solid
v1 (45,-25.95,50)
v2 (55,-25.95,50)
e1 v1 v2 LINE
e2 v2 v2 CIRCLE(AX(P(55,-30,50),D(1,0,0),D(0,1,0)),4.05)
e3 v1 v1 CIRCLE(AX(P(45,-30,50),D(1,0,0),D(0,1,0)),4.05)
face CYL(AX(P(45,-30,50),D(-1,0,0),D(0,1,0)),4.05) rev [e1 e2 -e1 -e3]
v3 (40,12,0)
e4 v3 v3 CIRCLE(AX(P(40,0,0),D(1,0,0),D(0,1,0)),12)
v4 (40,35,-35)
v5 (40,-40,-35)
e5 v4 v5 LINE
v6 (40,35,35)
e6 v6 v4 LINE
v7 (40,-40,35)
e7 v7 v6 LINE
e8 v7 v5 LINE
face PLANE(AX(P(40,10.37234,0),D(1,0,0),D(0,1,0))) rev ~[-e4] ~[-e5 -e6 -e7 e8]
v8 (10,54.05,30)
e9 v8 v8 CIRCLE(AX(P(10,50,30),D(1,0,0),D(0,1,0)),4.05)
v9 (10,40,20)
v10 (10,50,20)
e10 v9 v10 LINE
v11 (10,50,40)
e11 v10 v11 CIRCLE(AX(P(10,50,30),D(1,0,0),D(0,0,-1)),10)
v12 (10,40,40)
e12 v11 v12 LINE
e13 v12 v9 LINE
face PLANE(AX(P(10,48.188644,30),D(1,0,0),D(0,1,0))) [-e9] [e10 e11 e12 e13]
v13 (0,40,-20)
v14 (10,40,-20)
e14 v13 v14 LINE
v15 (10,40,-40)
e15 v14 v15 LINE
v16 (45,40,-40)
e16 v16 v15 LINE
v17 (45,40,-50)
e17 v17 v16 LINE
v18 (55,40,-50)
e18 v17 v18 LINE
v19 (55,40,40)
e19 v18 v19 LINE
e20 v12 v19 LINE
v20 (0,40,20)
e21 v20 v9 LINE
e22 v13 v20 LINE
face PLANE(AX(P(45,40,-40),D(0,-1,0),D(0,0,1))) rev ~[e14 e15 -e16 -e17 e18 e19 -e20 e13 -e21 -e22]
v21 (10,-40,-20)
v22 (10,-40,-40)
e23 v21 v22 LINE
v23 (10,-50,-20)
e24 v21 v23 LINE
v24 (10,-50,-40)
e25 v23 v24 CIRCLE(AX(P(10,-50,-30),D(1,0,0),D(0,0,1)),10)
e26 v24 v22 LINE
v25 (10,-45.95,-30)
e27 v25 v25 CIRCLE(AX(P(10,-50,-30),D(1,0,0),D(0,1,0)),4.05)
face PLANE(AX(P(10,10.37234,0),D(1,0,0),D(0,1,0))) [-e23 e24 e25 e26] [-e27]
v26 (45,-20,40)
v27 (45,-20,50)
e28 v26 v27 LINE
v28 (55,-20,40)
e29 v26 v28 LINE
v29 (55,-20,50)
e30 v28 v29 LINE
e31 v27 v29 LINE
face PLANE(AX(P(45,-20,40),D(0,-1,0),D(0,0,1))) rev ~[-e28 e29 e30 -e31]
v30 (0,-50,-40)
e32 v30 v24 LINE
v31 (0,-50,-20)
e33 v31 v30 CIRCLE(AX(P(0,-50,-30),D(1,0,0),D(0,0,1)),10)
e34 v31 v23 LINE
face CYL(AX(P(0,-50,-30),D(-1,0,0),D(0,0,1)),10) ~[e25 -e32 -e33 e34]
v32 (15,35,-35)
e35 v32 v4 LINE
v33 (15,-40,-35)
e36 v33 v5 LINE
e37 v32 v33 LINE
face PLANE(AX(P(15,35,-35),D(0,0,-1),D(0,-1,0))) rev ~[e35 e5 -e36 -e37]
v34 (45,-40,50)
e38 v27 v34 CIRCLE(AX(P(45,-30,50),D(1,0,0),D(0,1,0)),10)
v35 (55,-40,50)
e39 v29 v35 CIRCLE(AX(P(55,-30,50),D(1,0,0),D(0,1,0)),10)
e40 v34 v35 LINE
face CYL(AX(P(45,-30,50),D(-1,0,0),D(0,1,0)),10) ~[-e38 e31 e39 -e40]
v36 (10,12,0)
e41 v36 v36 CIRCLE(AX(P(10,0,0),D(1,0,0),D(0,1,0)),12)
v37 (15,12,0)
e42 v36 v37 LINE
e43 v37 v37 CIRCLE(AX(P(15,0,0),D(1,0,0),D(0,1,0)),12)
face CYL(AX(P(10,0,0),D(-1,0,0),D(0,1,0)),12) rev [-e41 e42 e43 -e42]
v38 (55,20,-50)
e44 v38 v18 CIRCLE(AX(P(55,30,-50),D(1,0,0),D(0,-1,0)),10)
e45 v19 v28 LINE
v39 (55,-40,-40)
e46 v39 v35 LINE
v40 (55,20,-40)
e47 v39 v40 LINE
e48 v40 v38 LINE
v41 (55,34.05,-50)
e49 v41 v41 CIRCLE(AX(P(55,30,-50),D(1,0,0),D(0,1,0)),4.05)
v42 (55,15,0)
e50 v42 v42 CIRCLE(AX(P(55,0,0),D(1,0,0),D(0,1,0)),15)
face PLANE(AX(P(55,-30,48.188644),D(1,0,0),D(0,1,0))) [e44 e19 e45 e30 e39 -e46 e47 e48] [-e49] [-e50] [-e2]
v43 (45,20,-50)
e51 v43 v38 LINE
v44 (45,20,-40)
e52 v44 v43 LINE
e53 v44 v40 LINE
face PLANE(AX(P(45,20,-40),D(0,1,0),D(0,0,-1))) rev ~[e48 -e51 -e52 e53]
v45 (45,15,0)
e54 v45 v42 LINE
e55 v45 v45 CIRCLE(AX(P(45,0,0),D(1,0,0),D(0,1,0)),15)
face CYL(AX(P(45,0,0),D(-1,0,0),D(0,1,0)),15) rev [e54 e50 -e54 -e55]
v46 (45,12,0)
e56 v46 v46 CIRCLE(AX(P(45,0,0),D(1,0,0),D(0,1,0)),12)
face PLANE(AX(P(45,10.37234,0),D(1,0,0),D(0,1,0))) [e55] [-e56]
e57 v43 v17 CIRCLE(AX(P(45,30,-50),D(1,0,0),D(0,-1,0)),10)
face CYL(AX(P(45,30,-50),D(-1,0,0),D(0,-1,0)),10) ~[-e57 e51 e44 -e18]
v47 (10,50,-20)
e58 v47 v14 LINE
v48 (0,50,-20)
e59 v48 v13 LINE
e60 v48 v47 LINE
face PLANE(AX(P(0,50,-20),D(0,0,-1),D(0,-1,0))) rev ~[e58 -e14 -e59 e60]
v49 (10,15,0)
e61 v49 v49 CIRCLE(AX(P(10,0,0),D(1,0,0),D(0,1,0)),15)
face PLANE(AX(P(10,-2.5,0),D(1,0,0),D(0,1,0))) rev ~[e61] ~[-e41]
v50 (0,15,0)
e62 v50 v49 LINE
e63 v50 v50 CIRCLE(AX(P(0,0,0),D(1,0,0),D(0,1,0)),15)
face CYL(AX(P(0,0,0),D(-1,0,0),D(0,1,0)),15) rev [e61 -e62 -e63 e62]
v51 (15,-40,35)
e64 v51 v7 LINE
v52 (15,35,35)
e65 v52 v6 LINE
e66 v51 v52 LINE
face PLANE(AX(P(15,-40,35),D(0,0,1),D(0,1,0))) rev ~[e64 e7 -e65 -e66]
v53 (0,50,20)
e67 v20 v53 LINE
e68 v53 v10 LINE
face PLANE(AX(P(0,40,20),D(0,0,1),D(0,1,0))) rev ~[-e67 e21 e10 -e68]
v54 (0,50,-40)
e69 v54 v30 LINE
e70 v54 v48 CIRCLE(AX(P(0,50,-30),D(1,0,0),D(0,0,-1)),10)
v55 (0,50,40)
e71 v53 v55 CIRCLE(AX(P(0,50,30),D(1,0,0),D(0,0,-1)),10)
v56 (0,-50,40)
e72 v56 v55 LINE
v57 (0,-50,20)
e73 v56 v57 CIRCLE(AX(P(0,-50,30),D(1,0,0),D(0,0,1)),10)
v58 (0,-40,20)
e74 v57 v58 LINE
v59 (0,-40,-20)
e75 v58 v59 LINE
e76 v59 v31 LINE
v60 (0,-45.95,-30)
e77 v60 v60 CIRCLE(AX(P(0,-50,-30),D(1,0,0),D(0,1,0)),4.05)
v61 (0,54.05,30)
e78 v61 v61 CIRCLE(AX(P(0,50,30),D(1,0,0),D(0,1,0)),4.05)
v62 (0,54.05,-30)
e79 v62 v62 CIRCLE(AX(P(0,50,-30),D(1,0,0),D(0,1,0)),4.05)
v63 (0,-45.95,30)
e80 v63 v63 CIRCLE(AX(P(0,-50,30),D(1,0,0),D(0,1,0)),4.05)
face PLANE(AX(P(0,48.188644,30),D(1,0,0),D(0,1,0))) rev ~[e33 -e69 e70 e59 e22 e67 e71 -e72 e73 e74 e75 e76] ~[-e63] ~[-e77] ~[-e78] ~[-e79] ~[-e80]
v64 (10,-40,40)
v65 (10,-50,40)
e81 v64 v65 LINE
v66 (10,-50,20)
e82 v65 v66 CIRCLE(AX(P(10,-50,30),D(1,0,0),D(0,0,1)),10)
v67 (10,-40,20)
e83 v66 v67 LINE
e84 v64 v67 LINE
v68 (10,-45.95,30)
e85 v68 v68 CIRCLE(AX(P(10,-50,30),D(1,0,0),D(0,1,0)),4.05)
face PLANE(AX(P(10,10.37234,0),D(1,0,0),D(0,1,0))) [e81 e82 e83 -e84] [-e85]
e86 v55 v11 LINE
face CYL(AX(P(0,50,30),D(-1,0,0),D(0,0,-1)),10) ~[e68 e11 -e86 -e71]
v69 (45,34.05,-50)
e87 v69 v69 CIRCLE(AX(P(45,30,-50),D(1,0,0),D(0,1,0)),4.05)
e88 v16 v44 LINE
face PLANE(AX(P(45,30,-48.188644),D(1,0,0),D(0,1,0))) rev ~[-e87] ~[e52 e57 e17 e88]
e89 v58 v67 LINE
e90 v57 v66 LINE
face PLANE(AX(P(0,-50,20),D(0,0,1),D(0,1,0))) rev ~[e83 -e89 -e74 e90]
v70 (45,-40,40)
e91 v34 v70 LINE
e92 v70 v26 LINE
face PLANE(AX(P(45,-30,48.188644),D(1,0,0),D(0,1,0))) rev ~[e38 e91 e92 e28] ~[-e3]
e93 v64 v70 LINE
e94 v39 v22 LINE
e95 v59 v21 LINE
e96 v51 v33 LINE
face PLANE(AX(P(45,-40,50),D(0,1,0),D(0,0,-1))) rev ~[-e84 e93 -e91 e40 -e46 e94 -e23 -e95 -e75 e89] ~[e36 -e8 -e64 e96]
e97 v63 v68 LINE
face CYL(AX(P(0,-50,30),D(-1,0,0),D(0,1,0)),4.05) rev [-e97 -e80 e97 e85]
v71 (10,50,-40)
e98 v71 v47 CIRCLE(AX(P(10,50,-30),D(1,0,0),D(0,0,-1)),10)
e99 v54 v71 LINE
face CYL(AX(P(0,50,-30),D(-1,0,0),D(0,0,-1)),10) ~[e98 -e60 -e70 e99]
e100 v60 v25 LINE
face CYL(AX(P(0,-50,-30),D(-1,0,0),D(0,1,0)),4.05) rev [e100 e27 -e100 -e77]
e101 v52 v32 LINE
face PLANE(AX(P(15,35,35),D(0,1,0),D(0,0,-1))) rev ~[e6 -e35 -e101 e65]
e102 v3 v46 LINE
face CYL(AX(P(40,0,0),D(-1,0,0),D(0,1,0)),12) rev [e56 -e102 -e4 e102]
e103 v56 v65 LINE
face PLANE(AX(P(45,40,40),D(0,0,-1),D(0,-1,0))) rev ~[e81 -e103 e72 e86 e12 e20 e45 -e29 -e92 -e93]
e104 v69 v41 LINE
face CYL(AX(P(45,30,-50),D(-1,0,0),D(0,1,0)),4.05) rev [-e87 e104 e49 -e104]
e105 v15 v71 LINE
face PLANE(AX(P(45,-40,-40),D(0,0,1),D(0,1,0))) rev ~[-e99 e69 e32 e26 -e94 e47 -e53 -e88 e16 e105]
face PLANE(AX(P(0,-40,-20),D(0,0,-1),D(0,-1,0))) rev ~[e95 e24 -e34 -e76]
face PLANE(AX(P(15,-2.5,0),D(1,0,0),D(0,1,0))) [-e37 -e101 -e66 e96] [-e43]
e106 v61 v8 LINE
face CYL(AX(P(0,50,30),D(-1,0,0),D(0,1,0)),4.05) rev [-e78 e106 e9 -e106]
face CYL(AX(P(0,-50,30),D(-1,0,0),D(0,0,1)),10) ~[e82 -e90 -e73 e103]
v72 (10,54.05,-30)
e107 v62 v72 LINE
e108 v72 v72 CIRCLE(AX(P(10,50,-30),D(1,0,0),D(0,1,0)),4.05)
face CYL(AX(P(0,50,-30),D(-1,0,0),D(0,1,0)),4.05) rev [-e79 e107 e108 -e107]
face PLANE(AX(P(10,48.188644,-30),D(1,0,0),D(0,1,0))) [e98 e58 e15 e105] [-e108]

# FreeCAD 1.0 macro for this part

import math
import FreeCAD as App
import Part
import Sketcher
Q = App.Units.Quantity


def add_polygon(sketch, points):
    """Adds a closed chain of lines whose ends are joined by coincident constraints."""
    first, n = sketch.GeometryCount, len(points)
    for a, b in zip(points, points[1:] + points[:1]):
        sketch.addGeometry(Part.LineSegment(App.Vector(*a, 0), App.Vector(*b, 0)), False)
    for i in range(n):
        sketch.addConstraint(Sketcher.Constraint("Coincident", first + i, 2, first + (i + 1) % n, 1))

doc = App.newDocument("Part")
params = doc.addObject("Spreadsheet::Sheet", "Params")
for row, (alias, value) in enumerate([
    ("sketch1_diameter", "30 mm"),
    ("sketch1_radius", "10 mm"),
    ("sketch1_diameter2", "8.1 mm"),
    ("sketch1_width", "90 mm"),
    ("sketch1_width2", "10 mm"),
    ("pad1_length", "10 mm"),
    ("sketch2_diameter", "24 mm"),
    ("sketch2_width", "80 mm"),
    ("pad2_length", "5 mm"),
    ("sketch3_width", "80 mm"),
    ("sketch3_width2", "75 mm"),
    ("sketch3_height", "5 mm"),
    ("pad3_length", "25 mm"),
    ("sketch4_diameter", "24 mm"),
    ("sketch4_width", "80 mm"),
    ("pad4_length", "5 mm"),
    ("sketch5_diameter", "30 mm"),
    ("sketch5_width", "80 mm"),
    ("pad5_length", "10 mm"),
    ("sketch6_radius", "10 mm"),
    ("sketch6_diameter", "8.1 mm"),
    ("sketch6_height", "10 mm"),
    ("pad6_length", "10 mm"),
    ("sketch7_radius", "10 mm"),
    ("sketch7_diameter", "8.1 mm"),
    ("sketch7_width", "10 mm"),
    ("pad7_length", "10 mm"),
], start=1):
    params.set(f"A{row}", alias)
    params.set(f"B{row}", "=" + value)
    params.setAlias(f"B{row}", alias)

body = doc.addObject("PartDesign::Body", "Body")

# Sketch on YZ plane
sketch1 = body.newObject("Sketcher::SketchObject", "Sketch")
sketch1.AttachmentSupport = (doc.getObject("YZ_Plane"), [""])
sketch1.MapMode = "FlatFace"
sketch1.addGeometry([
    Part.LineSegment(App.Vector(40, -40, 0), App.Vector(40, 40, 0)),  # 0
    Part.LineSegment(App.Vector(40, 40, 0), App.Vector(-50, 40, 0)),  # 1
    Part.ArcOfCircle(Part.Circle(App.Vector(-50, 30, 0), App.Vector(0, 0, 1), 10), math.radians(90), math.radians(270)),  # 2
    Part.LineSegment(App.Vector(-50, 20, 0), App.Vector(-40, 20, 0)),  # 3
    Part.LineSegment(App.Vector(-40, 20, 0), App.Vector(-40, -20, 0)),  # 4
    Part.LineSegment(App.Vector(-40, -20, 0), App.Vector(-50, -20, 0)),  # 5
    Part.ArcOfCircle(Part.Circle(App.Vector(-50, -30, 0), App.Vector(0, 0, 1), 10), math.radians(90), math.radians(270)),  # 6
    Part.LineSegment(App.Vector(-50, -40, 0), App.Vector(40, -40, 0)),  # 7
    Part.Circle(App.Vector(-50, -30, 0), App.Vector(0, 0, 1), 4),  # 8
    Part.Circle(App.Vector(-50, 30, 0), App.Vector(0, 0, 1), 4),  # 9
    Part.Circle(App.Vector(0, 0, 0), App.Vector(0, 0, 1), 15),  # 10
], False)
sketch1.addConstraint([
    Sketcher.Constraint("Coincident", 0, 2, 1, 1),
    Sketcher.Constraint("Tangent", 1, 2, 2, 1),
    Sketcher.Constraint("Tangent", 2, 2, 3, 1),
    Sketcher.Constraint("Coincident", 3, 2, 4, 1),
    Sketcher.Constraint("Coincident", 4, 2, 5, 1),
    Sketcher.Constraint("Tangent", 5, 2, 6, 1),
    Sketcher.Constraint("Tangent", 6, 2, 7, 1),
    Sketcher.Constraint("Coincident", 7, 2, 0, 1),
    Sketcher.Constraint("Vertical", 0),
    Sketcher.Constraint("Horizontal", 1),
    Sketcher.Constraint("Horizontal", 3),
    Sketcher.Constraint("Vertical", 4),
    Sketcher.Constraint("Horizontal", 5),
    Sketcher.Constraint("Horizontal", 7),
    Sketcher.Constraint("Coincident", 10, 3, -1, 1),
    Sketcher.Constraint("Coincident", 8, 3, 6, 3),
    Sketcher.Constraint("Coincident", 9, 3, 2, 3),
    Sketcher.Constraint("Equal", 2, 6),
    Sketcher.Constraint("Equal", 8, 9),
    Sketcher.Constraint("Symmetric", 2, 3, 6, 3, -1),
    Sketcher.Constraint("Diameter", 10, Q("30 mm")),
    Sketcher.Constraint("Radius", 2, Q("10 mm")),
    Sketcher.Constraint("Diameter", 8, Q("8.1 mm")),
    Sketcher.Constraint("DistanceX", 1, 2, 1, 1, Q("90 mm")),
    Sketcher.Constraint("DistanceX", 3, 1, 3, 2, Q("10 mm")),
    Sketcher.Constraint("DistanceY", 0, 1, 0, 2, Q("80 mm")),
    Sketcher.Constraint("DistanceX", 2, 3, -1, 1, Q("50 mm")),
])
sketch1.setExpression("Constraints[20]", "Params.sketch1_diameter")
sketch1.setExpression("Constraints[21]", "Params.sketch1_radius")
sketch1.setExpression("Constraints[22]", "Params.sketch1_diameter2")
sketch1.setExpression("Constraints[23]", "Params.sketch1_width")
sketch1.setExpression("Constraints[24]", "Params.sketch1_width2")
pad1 = body.newObject("PartDesign::Pad", "Pad")
pad1.Profile = sketch1
pad1.setExpression("Length", "Params.pad1_length")

# Sketch on YZ plane
sketch2 = body.newObject("Sketcher::SketchObject", "Sketch001")
sketch2.AttachmentSupport = (doc.getObject("YZ_Plane"), [""])
sketch2.MapMode = "FlatFace"
sketch2.AttachmentOffset = App.Placement(App.Vector(0, 0, 10), App.Rotation())
add_polygon(sketch2, [(-40, -40), (40, -40), (40, 40), (-40, 40)])  # lines 0-3
sketch2.addGeometry(Part.Circle(App.Vector(0, 0, 0), App.Vector(0, 0, 1), 12), False)  # 4
sketch2.addConstraint([
    Sketcher.Constraint("Horizontal", 0),
    Sketcher.Constraint("Vertical", 1),
    Sketcher.Constraint("Horizontal", 2),
    Sketcher.Constraint("Vertical", 3),
    Sketcher.Constraint("Coincident", 4, 3, -1, 1),
    Sketcher.Constraint("Symmetric", 0, 2, 2, 2, -1, 1),
    Sketcher.Constraint("Equal", 2, 1),
    Sketcher.Constraint("Diameter", 4, Q("24 mm")),
    Sketcher.Constraint("DistanceX", 0, 1, 0, 2, Q("80 mm")),
])
sketch2.setExpression("Constraints[11]", "Params.sketch2_diameter")
sketch2.setExpression("Constraints[12]", "Params.sketch2_width")
pad2 = body.newObject("PartDesign::Pad", "Pad001")
pad2.Profile = sketch2
pad2.setExpression("Length", "Params.pad2_length")

# Sketch on YZ plane
sketch3 = body.newObject("Sketcher::SketchObject", "Sketch002")
sketch3.AttachmentSupport = (doc.getObject("YZ_Plane"), [""])
sketch3.MapMode = "FlatFace"
sketch3.AttachmentOffset = App.Placement(App.Vector(0, 0, 15), App.Rotation())
add_polygon(sketch3, [(40, -40), (40, 40), (-40, 40), (-40, 35), (35, 35), (35, -35), (-40, -35), (-40, -40)])  # lines 0-7
sketch3.addConstraint([
    Sketcher.Constraint("Vertical", 0),
    Sketcher.Constraint("Horizontal", 1),
    Sketcher.Constraint("Vertical", 2),
    Sketcher.Constraint("Horizontal", 3),
    Sketcher.Constraint("Vertical", 4),
    Sketcher.Constraint("Horizontal", 5),
    Sketcher.Constraint("Vertical", 6),
    Sketcher.Constraint("Horizontal", 7),
    Sketcher.Constraint("Symmetric", 0, 2, 6, 2, -1, 1),
    Sketcher.Constraint("Symmetric", 2, 2, 5, 2, -1),
    Sketcher.Constraint("Equal", 7, 0),
    Sketcher.Constraint("DistanceX", 1, 2, 1, 1, Q("80 mm")),
    Sketcher.Constraint("DistanceX", 3, 1, 3, 2, Q("75 mm")),
    Sketcher.Constraint("DistanceY", 2, 2, 2, 1, Q("5 mm")),
])
sketch3.setExpression("Constraints[19]", "Params.sketch3_width")
sketch3.setExpression("Constraints[20]", "Params.sketch3_width2")
sketch3.setExpression("Constraints[21]", "Params.sketch3_height")
pad3 = body.newObject("PartDesign::Pad", "Pad002")
pad3.Profile = sketch3
pad3.setExpression("Length", "Params.pad3_length")

# Sketch on YZ plane
sketch4 = body.newObject("Sketcher::SketchObject", "Sketch003")
sketch4.AttachmentSupport = (doc.getObject("YZ_Plane"), [""])
sketch4.MapMode = "FlatFace"
sketch4.AttachmentOffset = App.Placement(App.Vector(0, 0, 40), App.Rotation())
add_polygon(sketch4, [(40, -40), (40, 40), (-40, 40), (-40, -40)])  # lines 0-3
sketch4.addGeometry(Part.Circle(App.Vector(0, 0, 0), App.Vector(0, 0, 1), 12), False)  # 4
sketch4.addConstraint([
    Sketcher.Constraint("Vertical", 0),
    Sketcher.Constraint("Horizontal", 1),
    Sketcher.Constraint("Vertical", 2),
    Sketcher.Constraint("Horizontal", 3),
    Sketcher.Constraint("Coincident", 4, 3, -1, 1),
    Sketcher.Constraint("Symmetric", 0, 2, 2, 2, -1, 1),
    Sketcher.Constraint("Equal", 3, 0),
    Sketcher.Constraint("Diameter", 4, Q("24 mm")),
    Sketcher.Constraint("DistanceX", 1, 2, 1, 1, Q("80 mm")),
])
sketch4.setExpression("Constraints[11]", "Params.sketch4_diameter")
sketch4.setExpression("Constraints[12]", "Params.sketch4_width")
pad4 = body.newObject("PartDesign::Pad", "Pad003")
pad4.Profile = sketch4
pad4.setExpression("Length", "Params.pad4_length")

# Sketch on YZ plane
sketch5 = body.newObject("Sketcher::SketchObject", "Sketch004")
sketch5.AttachmentSupport = (doc.getObject("YZ_Plane"), [""])
sketch5.MapMode = "FlatFace"
sketch5.AttachmentOffset = App.Placement(App.Vector(0, 0, 45), App.Rotation())
add_polygon(sketch5, [(40, -40), (40, 40), (-40, 40), (-40, -40)])  # lines 0-3
sketch5.addGeometry(Part.Circle(App.Vector(0, 0, 0), App.Vector(0, 0, 1), 15), False)  # 4
sketch5.addConstraint([
    Sketcher.Constraint("Vertical", 0),
    Sketcher.Constraint("Horizontal", 1),
    Sketcher.Constraint("Vertical", 2),
    Sketcher.Constraint("Horizontal", 3),
    Sketcher.Constraint("Coincident", 4, 3, -1, 1),
    Sketcher.Constraint("Symmetric", 0, 2, 2, 2, -1, 1),
    Sketcher.Constraint("Equal", 3, 0),
    Sketcher.Constraint("Diameter", 4, Q("30 mm")),
    Sketcher.Constraint("DistanceX", 1, 2, 1, 1, Q("80 mm")),
])
sketch5.setExpression("Constraints[11]", "Params.sketch5_diameter")
sketch5.setExpression("Constraints[12]", "Params.sketch5_width")
pad5 = body.newObject("PartDesign::Pad", "Pad004")
pad5.Profile = sketch5
pad5.setExpression("Length", "Params.pad5_length")

# Sketch on YZ plane
sketch6 = body.newObject("Sketcher::SketchObject", "Sketch005")
sketch6.AttachmentSupport = (doc.getObject("YZ_Plane"), [""])
sketch6.MapMode = "FlatFace"
sketch6.AttachmentOffset = App.Placement(App.Vector(0, 0, 45), App.Rotation())
sketch6.addGeometry([
    Part.LineSegment(App.Vector(-40, 40, 0), App.Vector(-20, 40, 0)),  # 0
    Part.LineSegment(App.Vector(-20, 40, 0), App.Vector(-20, 50, 0)),  # 1
    Part.ArcOfCircle(Part.Circle(App.Vector(-30, 50, 0), App.Vector(0, 0, 1), 10), math.radians(0), math.radians(180)),  # 2
    Part.LineSegment(App.Vector(-40, 50, 0), App.Vector(-40, 40, 0)),  # 3
    Part.Circle(App.Vector(-30, 50, 0), App.Vector(0, 0, 1), 4),  # 4
    Part.LineSegment(App.Vector(40, -50, 0), App.Vector(40, -40, 0)),  # 5
    Part.LineSegment(App.Vector(40, -40, 0), App.Vector(20, -40, 0)),  # 6
    Part.LineSegment(App.Vector(20, -40, 0), App.Vector(20, -50, 0)),  # 7
    Part.ArcOfCircle(Part.Circle(App.Vector(30, -50, 0), App.Vector(0, 0, 1), 10), math.radians(180), math.radians(360)),  # 8
    Part.Circle(App.Vector(30, -50, 0), App.Vector(0, 0, 1), 4),  # 9
], False)
sketch6.addConstraint([
    Sketcher.Constraint("Coincident", 0, 2, 1, 1),
    Sketcher.Constraint("Tangent", 1, 2, 2, 1),
    Sketcher.Constraint("Tangent", 2, 2, 3, 1),
    Sketcher.Constraint("Coincident", 3, 2, 0, 1),
    Sketcher.Constraint("Coincident", 5, 2, 6, 1),
    Sketcher.Constraint("Coincident", 6, 2, 7, 1),
    Sketcher.Constraint("Tangent", 7, 2, 8, 1),
    Sketcher.Constraint("Tangent", 8, 2, 5, 1),
    Sketcher.Constraint("Horizontal", 0),
    Sketcher.Constraint("Vertical", 1),
    Sketcher.Constraint("Vertical", 3),
    Sketcher.Constraint("Vertical", 5),
    Sketcher.Constraint("Horizontal", 6),
    Sketcher.Constraint("Vertical", 7),
    Sketcher.Constraint("Coincident", 4, 3, 2, 3),
    Sketcher.Constraint("Coincident", 9, 3, 8, 3),
    Sketcher.Constraint("Equal", 2, 8),
    Sketcher.Constraint("Equal", 4, 9),
    Sketcher.Constraint("Symmetric", 2, 3, 8, 3, -1, 1),
    Sketcher.Constraint("Equal", 3, 5),
    Sketcher.Constraint("Radius", 2, Q("10 mm")),
    Sketcher.Constraint("Diameter", 4, Q("8.1 mm")),
    Sketcher.Constraint("DistanceY", 1, 1, 1, 2, Q("10 mm")),
    Sketcher.Constraint("DistanceX", 2, 3, -1, 1, Q("30 mm")),
    Sketcher.Constraint("DistanceY", -1, 1, 2, 3, Q("50 mm")),
])
sketch6.setExpression("Constraints[20]", "Params.sketch6_radius")
sketch6.setExpression("Constraints[21]", "Params.sketch6_diameter")
sketch6.setExpression("Constraints[22]", "Params.sketch6_height")
pad6 = body.newObject("PartDesign::Pad", "Pad005")
pad6.Profile = sketch6
pad6.setExpression("Length", "Params.pad6_length")

# Sketch on YZ plane
sketch7 = body.newObject("Sketcher::SketchObject", "Sketch006")
sketch7.AttachmentSupport = (doc.getObject("YZ_Plane"), [""])
sketch7.MapMode = "FlatFace"
sketch7.addGeometry([
    Part.LineSegment(App.Vector(40, 20, 0), App.Vector(50, 20, 0)),  # 0
    Part.ArcOfCircle(Part.Circle(App.Vector(50, 30, 0), App.Vector(0, 0, 1), 10), math.radians(-90), math.radians(90)),  # 1
    Part.LineSegment(App.Vector(50, 40, 0), App.Vector(40, 40, 0)),  # 2
    Part.LineSegment(App.Vector(40, 40, 0), App.Vector(40, 20, 0)),  # 3
    Part.Circle(App.Vector(50, 30, 0), App.Vector(0, 0, 1), 4),  # 4
    Part.LineSegment(App.Vector(40, -20, 0), App.Vector(40, -40, 0)),  # 5
    Part.LineSegment(App.Vector(40, -40, 0), App.Vector(50, -40, 0)),  # 6
    Part.ArcOfCircle(Part.Circle(App.Vector(50, -30, 0), App.Vector(0, 0, 1), 10), math.radians(-90), math.radians(90)),  # 7
    Part.LineSegment(App.Vector(50, -20, 0), App.Vector(40, -20, 0)),  # 8
    Part.Circle(App.Vector(50, -30, 0), App.Vector(0, 0, 1), 4),  # 9
], False)
sketch7.addConstraint([
    Sketcher.Constraint("Tangent", 0, 2, 1, 1),
    Sketcher.Constraint("Tangent", 1, 2, 2, 1),
    Sketcher.Constraint("Coincident", 2, 2, 3, 1),
    Sketcher.Constraint("Coincident", 3, 2, 0, 1),
    Sketcher.Constraint("Coincident", 5, 2, 6, 1),
    Sketcher.Constraint("Tangent", 6, 2, 7, 1),
    Sketcher.Constraint("Tangent", 7, 2, 8, 1),
    Sketcher.Constraint("Coincident", 8, 2, 5, 1),
    Sketcher.Constraint("Horizontal", 0),
    Sketcher.Constraint("Horizontal", 2),
    Sketcher.Constraint("Vertical", 3),
    Sketcher.Constraint("Vertical", 5),
    Sketcher.Constraint("Horizontal", 6),
    Sketcher.Constraint("Horizontal", 8),
    Sketcher.Constraint("Coincident", 4, 3, 1, 3),
    Sketcher.Constraint("Coincident", 9, 3, 7, 3),
    Sketcher.Constraint("Equal", 1, 7),
    Sketcher.Constraint("Equal", 4, 9),
    Sketcher.Constraint("Symmetric", 1, 3, 7, 3, -1),
    Sketcher.Constraint("Vertical", 3, 2, 5, 2),
    Sketcher.Constraint("Radius", 1, Q("10 mm")),
    Sketcher.Constraint("Diameter", 4, Q("8.1 mm")),
    Sketcher.Constraint("DistanceX", 0, 1, 0, 2, Q("10 mm")),
    Sketcher.Constraint("DistanceX", -1, 1, 1, 3, Q("50 mm")),
    Sketcher.Constraint("DistanceY", -1, 1, 1, 3, Q("30 mm")),
])
sketch7.setExpression("Constraints[20]", "Params.sketch7_radius")
sketch7.setExpression("Constraints[21]", "Params.sketch7_diameter")
sketch7.setExpression("Constraints[22]", "Params.sketch7_width")
pad7 = body.newObject("PartDesign::Pad", "Pad006")
pad7.Profile = sketch7
pad7.setExpression("Length", "Params.pad7_length")

doc.recompute()
